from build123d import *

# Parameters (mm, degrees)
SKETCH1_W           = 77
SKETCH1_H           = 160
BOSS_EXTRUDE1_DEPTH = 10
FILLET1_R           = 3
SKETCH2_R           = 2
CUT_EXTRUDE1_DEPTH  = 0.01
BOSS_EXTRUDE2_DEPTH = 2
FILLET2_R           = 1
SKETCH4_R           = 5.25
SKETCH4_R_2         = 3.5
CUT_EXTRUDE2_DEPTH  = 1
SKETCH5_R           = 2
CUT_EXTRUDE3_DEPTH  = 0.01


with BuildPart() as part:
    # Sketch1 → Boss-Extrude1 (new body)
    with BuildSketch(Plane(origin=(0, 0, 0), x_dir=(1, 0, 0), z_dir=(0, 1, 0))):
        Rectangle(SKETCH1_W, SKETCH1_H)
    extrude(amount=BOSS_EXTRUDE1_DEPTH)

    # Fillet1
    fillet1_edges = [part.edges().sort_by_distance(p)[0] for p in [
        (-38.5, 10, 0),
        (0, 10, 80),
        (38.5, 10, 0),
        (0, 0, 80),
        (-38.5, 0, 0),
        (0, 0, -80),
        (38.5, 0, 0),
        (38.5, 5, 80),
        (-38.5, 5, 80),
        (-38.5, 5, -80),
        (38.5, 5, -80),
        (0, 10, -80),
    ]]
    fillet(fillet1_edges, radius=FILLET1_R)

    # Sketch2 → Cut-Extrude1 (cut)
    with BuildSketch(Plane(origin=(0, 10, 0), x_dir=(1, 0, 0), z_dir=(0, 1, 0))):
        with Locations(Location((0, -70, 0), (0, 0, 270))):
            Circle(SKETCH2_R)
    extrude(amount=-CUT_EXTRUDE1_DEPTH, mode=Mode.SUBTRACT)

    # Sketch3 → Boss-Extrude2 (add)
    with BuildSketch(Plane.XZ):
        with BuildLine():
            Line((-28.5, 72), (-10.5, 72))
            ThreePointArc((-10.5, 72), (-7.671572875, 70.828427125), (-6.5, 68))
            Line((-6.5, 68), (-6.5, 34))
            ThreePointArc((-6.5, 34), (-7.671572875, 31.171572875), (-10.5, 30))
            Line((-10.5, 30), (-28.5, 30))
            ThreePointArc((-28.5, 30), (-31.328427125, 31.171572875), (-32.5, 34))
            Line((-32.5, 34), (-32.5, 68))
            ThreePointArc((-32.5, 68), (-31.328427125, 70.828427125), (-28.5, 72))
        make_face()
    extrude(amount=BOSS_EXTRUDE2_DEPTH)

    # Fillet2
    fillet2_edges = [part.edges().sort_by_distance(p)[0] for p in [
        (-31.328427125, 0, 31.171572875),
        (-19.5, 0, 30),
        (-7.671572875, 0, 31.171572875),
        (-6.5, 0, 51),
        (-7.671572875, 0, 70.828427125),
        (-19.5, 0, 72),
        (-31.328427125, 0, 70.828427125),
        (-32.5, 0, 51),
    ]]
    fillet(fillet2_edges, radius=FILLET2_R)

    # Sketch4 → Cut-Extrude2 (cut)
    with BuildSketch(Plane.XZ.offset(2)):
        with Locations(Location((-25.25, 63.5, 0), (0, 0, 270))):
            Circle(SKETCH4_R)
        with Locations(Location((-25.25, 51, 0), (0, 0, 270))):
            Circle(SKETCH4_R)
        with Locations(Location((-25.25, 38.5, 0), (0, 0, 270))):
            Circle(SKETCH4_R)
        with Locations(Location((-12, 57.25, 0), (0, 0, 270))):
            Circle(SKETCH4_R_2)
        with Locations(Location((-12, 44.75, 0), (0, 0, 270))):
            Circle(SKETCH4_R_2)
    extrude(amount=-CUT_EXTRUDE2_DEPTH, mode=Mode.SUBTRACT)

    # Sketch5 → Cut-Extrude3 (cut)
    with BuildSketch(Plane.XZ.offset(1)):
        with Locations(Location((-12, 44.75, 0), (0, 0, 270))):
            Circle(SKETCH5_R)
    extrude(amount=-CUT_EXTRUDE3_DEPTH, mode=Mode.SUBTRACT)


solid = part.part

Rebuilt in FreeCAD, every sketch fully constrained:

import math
import FreeCAD as App
import Part
import Sketcher
from FreeCAD import Vector


def edges_at(feature, points):
    """Names of the edges that pass closest to the given points."""
    edges = feature.Shape.Edges
    near = lambda p: min(range(len(edges)), key=lambda i: edges[i].distToShape(Part.Vertex(*p))[0])
    return sorted({f"Edge{near(p) + 1}" for p in points})


def add_polygon(sketch, points):
    """Adds a closed chain of lines whose ends are joined by coincident constraints."""
    first, n = sketch.GeometryCount, len(points)
    for a, b in zip(points, points[1:] + points[:1]):
        sketch.addGeometry(Part.LineSegment(App.Vector(*a, 0), App.Vector(*b, 0)), False)
    for i in range(n):
        sketch.addConstraint(Sketcher.Constraint("Coincident", first + i, 2, first + (i + 1) % n, 1))

doc = App.newDocument("Part")
body = doc.addObject("PartDesign::Body", "Body")

sketch1 = body.newObject("Sketcher::SketchObject", "Sketch")
sketch1.AttachmentSupport = (doc.getObject("XZ_Plane"), [""])
sketch1.MapMode = "FlatFace"
add_polygon(sketch1, [(-38, -80), (-38, 80), (38, 80), (38, -80)])
sketch1.addConstraint([
    Sketcher.Constraint("Vertical", 0),
    Sketcher.Constraint("Horizontal", 1),
    Sketcher.Constraint("Vertical", 2),
    Sketcher.Constraint("Horizontal", 3),
    Sketcher.Constraint("Symmetric", 0, 2, 2, 2, -1, 1),
    Sketcher.Constraint("DistanceX", 1, 1, 1, 2, 77.0),
    Sketcher.Constraint("DistanceY", 0, 1, 0, 2, 160.0),
])
pad1 = body.newObject("PartDesign::Pad", "Pad")
pad1.Profile = sketch1
pad1.Length = 10
pad1.Reversed = True
doc.recompute()

fillet = body.newObject("PartDesign::Fillet", "Fillet")
fillet.Base = (pad1, ["Edge1"])
fillet.UseAllEdges = True
fillet.Radius = 3

sketch2 = body.newObject("Sketcher::SketchObject", "Sketch001")
sketch2.AttachmentSupport = (doc.getObject("XZ_Plane"), [""])
sketch2.MapMode = "FlatFace"
sketch2.AttachmentOffset = App.Placement(Vector(0, 0, -10), App.Rotation())
sketch2.addGeometry(Part.Circle(Vector(0, 70, 0), Vector(0, 0, 1), 2), False)
sketch2.addConstraint([
    Sketcher.Constraint("PointOnObject", 0, 3, -2),
    Sketcher.Constraint("Diameter", 0, 4.0),
    Sketcher.Constraint("DistanceY", -1, 1, 0, 3, 70.0),
])
pocket1 = body.newObject("PartDesign::Pocket", "Pocket")
pocket1.Profile = sketch2
pocket1.Length = 0.01
pocket1.Reversed = True

sketch3 = body.newObject("Sketcher::SketchObject", "Sketch002")
sketch3.AttachmentSupport = (doc.getObject("XZ_Plane"), [""])
sketch3.MapMode = "FlatFace"
sketch3.addGeometry([
    Part.LineSegment(Vector(-10.5, 72, 0), Vector(-28.5, 72, 0)),
    Part.ArcOfCircle(Part.Circle(Vector(-28.5, 68, 0), Vector(0, 0, 1), 4), math.radians(90), math.radians(180)),
    Part.LineSegment(Vector(-32.5, 68, 0), Vector(-32.5, 34, 0)),
    Part.ArcOfCircle(Part.Circle(Vector(-28.5, 34, 0), Vector(0, 0, 1), 4), math.radians(180), math.radians(270)),
    Part.LineSegment(Vector(-28.5, 30, 0), Vector(-10.5, 30, 0)),
    Part.ArcOfCircle(Part.Circle(Vector(-10.5, 34, 0), Vector(0, 0, 1), 4), math.radians(-90), math.radians(0)),
    Part.LineSegment(Vector(-6.5, 34, 0), Vector(-6.5, 68, 0)),
    Part.ArcOfCircle(Part.Circle(Vector(-10.5, 68, 0), Vector(0, 0, 1), 4), math.radians(0), math.radians(90)),
], False)
sketch3.addConstraint([
    Sketcher.Constraint("Tangent", 0, 2, 1, 1),
    Sketcher.Constraint("Tangent", 1, 2, 2, 1),
    Sketcher.Constraint("Tangent", 2, 2, 3, 1),
    Sketcher.Constraint("Tangent", 3, 2, 4, 1),
    Sketcher.Constraint("Tangent", 4, 2, 5, 1),
    Sketcher.Constraint("Tangent", 5, 2, 6, 1),
    Sketcher.Constraint("Tangent", 6, 2, 7, 1),
    Sketcher.Constraint("Tangent", 7, 2, 0, 1),
    Sketcher.Constraint("Horizontal", 0),
    Sketcher.Constraint("Vertical", 2),
    Sketcher.Constraint("Horizontal", 4),
    Sketcher.Constraint("Vertical", 6),
    Sketcher.Constraint("Equal", 1, 3),
    Sketcher.Constraint("Equal", 3, 5),
    Sketcher.Constraint("Equal", 5, 7),
    Sketcher.Constraint("Radius", 1, 4.0),
    Sketcher.Constraint("DistanceX", 0, 2, 0, 1, 18.0),
    Sketcher.Constraint("DistanceY", 2, 2, 2, 1, 34.0),
    Sketcher.Constraint("DistanceY", -1, 1, 1, 3, 68.0),
    Sketcher.Constraint("DistanceX", 1, 3, -1, 1, 28.5),
])
pad2 = body.newObject("PartDesign::Pad", "Pad001")
pad2.Profile = sketch3
pad2.Length = 2
doc.recompute()

fillet2 = body.newObject("PartDesign::Fillet", "Fillet001")
fillet2.Base = (pad2, edges_at(pad2, [
    (-31.328, 0, 31.172),
    (-19.5, 0, 30),
    (-7.672, 0, 31.172),
    (-6.5, 0, 51),
    (-7.672, 0, 70.828),
    (-19.5, 0, 72),
    (-31.328, 0, 70.828),
    (-32.5, 0, 51),
]))
fillet2.Radius = 1

sketch4 = body.newObject("Sketcher::SketchObject", "Sketch003")
sketch4.AttachmentSupport = (doc.getObject("XZ_Plane"), [""])
sketch4.MapMode = "FlatFace"
sketch4.AttachmentOffset = App.Placement(Vector(0, 0, 2), App.Rotation())
sketch4.addGeometry([
    Part.Circle(Vector(-25.2, 63.5, 0), Vector(0, 0, 1), 5.2),
    Part.Circle(Vector(-25.2, 51, 0), Vector(0, 0, 1), 5.2),
    Part.Circle(Vector(-25.2, 38.5, 0), Vector(0, 0, 1), 5.2),
    Part.Circle(Vector(-12, 57.2, 0), Vector(0, 0, 1), 3.5),
    Part.Circle(Vector(-12, 44.8, 0), Vector(0, 0, 1), 3.5),
], False)
sketch4.addConstraint([
    Sketcher.Constraint("Equal", 0, 1),
    Sketcher.Constraint("Equal", 1, 2),
    Sketcher.Constraint("Equal", 3, 4),
    Sketcher.Constraint("Vertical", 0, 3, 1, 3),
    Sketcher.Constraint("Vertical", 1, 3, 2, 3),
    Sketcher.Constraint("Vertical", 3, 3, 4, 3),
    Sketcher.Constraint("Diameter", 3, 7.0),
    Sketcher.Constraint("Diameter", 0, 10.5),
    Sketcher.Constraint("DistanceY", -1, 1, 1, 3, 51.0),
    Sketcher.Constraint("DistanceX", 3, 3, -1, 1, 12.0),
    Sketcher.Constraint("DistanceY", 2, 3, 0, 3, 25.0),
    Sketcher.Constraint("DistanceY", -1, 1, 0, 3, 63.5),
    Sketcher.Constraint("DistanceY", 4, 3, 3, 3, 12.5),
    Sketcher.Constraint("DistanceX", 0, 3, -1, 1, 25.25),
    Sketcher.Constraint("DistanceY", -1, 1, 3, 3, 57.25),
])
pocket2 = body.newObject("PartDesign::Pocket", "Pocket001")
pocket2.Profile = sketch4
pocket2.Length = 1

sketch5 = body.newObject("Sketcher::SketchObject", "Sketch004")
sketch5.AttachmentSupport = (doc.getObject("XZ_Plane"), [""])
sketch5.MapMode = "FlatFace"
sketch5.AttachmentOffset = App.Placement(Vector(0, 0, 1), App.Rotation())
sketch5.addGeometry(Part.Circle(Vector(-12, 44.8, 0), Vector(0, 0, 1), 2), False)
sketch5.addConstraint([
    Sketcher.Constraint("Diameter", 0, 4.0),
    Sketcher.Constraint("DistanceX", 0, 3, -1, 1, 12.0),
    Sketcher.Constraint("DistanceY", -1, 1, 0, 3, 44.75),
])
pocket3 = body.newObject("PartDesign::Pocket", "Pocket002")
pocket3.Profile = sketch5
pocket3.Length = 0.01

doc.recompute()
